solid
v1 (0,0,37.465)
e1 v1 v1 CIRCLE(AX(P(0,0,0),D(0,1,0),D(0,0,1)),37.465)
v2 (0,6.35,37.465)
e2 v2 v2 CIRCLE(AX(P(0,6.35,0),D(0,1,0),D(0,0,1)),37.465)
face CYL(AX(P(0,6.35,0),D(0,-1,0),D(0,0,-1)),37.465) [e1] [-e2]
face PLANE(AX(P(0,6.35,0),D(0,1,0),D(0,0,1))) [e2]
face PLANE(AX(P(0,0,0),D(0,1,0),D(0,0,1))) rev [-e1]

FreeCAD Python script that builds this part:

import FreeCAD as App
import Part
import Sketcher

V = App.Vector
Q = App.Units.Quantity

doc = App.newDocument("Part")
body = doc.addObject("PartDesign::Body", "Body")

# Sketch on XZ plane
sketch1 = doc.addObject("Sketcher::SketchObject", "Sketch")
body.addObject(sketch1)
sketch1.AttachmentSupport = (doc.XZ_Plane, [""])
sketch1.MapMode = "FlatFace"
sketch1.addGeometry(Part.Circle(V(0, 0, 0), V(0, 0, 1), 37), False)
sketch1.addConstraint(Sketcher.Constraint("Coincident", 0, 3, -1, 1))
sketch1.addConstraint(Sketcher.Constraint("Diameter", 0, Q("2.95 in")))
pad1 = doc.addObject("PartDesign::Pad", "Pad")
body.addObject(pad1)
pad1.Profile = sketch1
pad1.Length = Q("0.25 in")
pad1.Reversed = True

doc.recompute()
